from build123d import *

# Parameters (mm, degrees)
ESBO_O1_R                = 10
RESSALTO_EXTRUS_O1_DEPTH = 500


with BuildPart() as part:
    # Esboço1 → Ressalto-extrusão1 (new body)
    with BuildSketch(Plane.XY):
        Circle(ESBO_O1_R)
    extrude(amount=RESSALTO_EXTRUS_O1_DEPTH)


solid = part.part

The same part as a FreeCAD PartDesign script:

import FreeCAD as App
import Part
import Sketcher
Q = App.Units.Quantity

doc = App.newDocument("Part")
body = doc.addObject("PartDesign::Body", "Body")

sketch1 = body.newObject("Sketcher::SketchObject", "Sketch")
sketch1.AttachmentSupport = (doc.getObject("XY_Plane"), [""])
sketch1.MapMode = "FlatFace"
sketch1.addGeometry(Part.Circle(App.Vector(0, 0, 0), App.Vector(0, 0, 1), 10), False)
sketch1.addConstraint([
    Sketcher.Constraint("Coincident", 0, 3, -1, 1),
    Sketcher.Constraint("Diameter", 0, Q("20 mm")),
])
pad1 = body.newObject("PartDesign::Pad", "Pad")
pad1.Profile = sketch1
pad1.Length = 500

doc.recompute()
